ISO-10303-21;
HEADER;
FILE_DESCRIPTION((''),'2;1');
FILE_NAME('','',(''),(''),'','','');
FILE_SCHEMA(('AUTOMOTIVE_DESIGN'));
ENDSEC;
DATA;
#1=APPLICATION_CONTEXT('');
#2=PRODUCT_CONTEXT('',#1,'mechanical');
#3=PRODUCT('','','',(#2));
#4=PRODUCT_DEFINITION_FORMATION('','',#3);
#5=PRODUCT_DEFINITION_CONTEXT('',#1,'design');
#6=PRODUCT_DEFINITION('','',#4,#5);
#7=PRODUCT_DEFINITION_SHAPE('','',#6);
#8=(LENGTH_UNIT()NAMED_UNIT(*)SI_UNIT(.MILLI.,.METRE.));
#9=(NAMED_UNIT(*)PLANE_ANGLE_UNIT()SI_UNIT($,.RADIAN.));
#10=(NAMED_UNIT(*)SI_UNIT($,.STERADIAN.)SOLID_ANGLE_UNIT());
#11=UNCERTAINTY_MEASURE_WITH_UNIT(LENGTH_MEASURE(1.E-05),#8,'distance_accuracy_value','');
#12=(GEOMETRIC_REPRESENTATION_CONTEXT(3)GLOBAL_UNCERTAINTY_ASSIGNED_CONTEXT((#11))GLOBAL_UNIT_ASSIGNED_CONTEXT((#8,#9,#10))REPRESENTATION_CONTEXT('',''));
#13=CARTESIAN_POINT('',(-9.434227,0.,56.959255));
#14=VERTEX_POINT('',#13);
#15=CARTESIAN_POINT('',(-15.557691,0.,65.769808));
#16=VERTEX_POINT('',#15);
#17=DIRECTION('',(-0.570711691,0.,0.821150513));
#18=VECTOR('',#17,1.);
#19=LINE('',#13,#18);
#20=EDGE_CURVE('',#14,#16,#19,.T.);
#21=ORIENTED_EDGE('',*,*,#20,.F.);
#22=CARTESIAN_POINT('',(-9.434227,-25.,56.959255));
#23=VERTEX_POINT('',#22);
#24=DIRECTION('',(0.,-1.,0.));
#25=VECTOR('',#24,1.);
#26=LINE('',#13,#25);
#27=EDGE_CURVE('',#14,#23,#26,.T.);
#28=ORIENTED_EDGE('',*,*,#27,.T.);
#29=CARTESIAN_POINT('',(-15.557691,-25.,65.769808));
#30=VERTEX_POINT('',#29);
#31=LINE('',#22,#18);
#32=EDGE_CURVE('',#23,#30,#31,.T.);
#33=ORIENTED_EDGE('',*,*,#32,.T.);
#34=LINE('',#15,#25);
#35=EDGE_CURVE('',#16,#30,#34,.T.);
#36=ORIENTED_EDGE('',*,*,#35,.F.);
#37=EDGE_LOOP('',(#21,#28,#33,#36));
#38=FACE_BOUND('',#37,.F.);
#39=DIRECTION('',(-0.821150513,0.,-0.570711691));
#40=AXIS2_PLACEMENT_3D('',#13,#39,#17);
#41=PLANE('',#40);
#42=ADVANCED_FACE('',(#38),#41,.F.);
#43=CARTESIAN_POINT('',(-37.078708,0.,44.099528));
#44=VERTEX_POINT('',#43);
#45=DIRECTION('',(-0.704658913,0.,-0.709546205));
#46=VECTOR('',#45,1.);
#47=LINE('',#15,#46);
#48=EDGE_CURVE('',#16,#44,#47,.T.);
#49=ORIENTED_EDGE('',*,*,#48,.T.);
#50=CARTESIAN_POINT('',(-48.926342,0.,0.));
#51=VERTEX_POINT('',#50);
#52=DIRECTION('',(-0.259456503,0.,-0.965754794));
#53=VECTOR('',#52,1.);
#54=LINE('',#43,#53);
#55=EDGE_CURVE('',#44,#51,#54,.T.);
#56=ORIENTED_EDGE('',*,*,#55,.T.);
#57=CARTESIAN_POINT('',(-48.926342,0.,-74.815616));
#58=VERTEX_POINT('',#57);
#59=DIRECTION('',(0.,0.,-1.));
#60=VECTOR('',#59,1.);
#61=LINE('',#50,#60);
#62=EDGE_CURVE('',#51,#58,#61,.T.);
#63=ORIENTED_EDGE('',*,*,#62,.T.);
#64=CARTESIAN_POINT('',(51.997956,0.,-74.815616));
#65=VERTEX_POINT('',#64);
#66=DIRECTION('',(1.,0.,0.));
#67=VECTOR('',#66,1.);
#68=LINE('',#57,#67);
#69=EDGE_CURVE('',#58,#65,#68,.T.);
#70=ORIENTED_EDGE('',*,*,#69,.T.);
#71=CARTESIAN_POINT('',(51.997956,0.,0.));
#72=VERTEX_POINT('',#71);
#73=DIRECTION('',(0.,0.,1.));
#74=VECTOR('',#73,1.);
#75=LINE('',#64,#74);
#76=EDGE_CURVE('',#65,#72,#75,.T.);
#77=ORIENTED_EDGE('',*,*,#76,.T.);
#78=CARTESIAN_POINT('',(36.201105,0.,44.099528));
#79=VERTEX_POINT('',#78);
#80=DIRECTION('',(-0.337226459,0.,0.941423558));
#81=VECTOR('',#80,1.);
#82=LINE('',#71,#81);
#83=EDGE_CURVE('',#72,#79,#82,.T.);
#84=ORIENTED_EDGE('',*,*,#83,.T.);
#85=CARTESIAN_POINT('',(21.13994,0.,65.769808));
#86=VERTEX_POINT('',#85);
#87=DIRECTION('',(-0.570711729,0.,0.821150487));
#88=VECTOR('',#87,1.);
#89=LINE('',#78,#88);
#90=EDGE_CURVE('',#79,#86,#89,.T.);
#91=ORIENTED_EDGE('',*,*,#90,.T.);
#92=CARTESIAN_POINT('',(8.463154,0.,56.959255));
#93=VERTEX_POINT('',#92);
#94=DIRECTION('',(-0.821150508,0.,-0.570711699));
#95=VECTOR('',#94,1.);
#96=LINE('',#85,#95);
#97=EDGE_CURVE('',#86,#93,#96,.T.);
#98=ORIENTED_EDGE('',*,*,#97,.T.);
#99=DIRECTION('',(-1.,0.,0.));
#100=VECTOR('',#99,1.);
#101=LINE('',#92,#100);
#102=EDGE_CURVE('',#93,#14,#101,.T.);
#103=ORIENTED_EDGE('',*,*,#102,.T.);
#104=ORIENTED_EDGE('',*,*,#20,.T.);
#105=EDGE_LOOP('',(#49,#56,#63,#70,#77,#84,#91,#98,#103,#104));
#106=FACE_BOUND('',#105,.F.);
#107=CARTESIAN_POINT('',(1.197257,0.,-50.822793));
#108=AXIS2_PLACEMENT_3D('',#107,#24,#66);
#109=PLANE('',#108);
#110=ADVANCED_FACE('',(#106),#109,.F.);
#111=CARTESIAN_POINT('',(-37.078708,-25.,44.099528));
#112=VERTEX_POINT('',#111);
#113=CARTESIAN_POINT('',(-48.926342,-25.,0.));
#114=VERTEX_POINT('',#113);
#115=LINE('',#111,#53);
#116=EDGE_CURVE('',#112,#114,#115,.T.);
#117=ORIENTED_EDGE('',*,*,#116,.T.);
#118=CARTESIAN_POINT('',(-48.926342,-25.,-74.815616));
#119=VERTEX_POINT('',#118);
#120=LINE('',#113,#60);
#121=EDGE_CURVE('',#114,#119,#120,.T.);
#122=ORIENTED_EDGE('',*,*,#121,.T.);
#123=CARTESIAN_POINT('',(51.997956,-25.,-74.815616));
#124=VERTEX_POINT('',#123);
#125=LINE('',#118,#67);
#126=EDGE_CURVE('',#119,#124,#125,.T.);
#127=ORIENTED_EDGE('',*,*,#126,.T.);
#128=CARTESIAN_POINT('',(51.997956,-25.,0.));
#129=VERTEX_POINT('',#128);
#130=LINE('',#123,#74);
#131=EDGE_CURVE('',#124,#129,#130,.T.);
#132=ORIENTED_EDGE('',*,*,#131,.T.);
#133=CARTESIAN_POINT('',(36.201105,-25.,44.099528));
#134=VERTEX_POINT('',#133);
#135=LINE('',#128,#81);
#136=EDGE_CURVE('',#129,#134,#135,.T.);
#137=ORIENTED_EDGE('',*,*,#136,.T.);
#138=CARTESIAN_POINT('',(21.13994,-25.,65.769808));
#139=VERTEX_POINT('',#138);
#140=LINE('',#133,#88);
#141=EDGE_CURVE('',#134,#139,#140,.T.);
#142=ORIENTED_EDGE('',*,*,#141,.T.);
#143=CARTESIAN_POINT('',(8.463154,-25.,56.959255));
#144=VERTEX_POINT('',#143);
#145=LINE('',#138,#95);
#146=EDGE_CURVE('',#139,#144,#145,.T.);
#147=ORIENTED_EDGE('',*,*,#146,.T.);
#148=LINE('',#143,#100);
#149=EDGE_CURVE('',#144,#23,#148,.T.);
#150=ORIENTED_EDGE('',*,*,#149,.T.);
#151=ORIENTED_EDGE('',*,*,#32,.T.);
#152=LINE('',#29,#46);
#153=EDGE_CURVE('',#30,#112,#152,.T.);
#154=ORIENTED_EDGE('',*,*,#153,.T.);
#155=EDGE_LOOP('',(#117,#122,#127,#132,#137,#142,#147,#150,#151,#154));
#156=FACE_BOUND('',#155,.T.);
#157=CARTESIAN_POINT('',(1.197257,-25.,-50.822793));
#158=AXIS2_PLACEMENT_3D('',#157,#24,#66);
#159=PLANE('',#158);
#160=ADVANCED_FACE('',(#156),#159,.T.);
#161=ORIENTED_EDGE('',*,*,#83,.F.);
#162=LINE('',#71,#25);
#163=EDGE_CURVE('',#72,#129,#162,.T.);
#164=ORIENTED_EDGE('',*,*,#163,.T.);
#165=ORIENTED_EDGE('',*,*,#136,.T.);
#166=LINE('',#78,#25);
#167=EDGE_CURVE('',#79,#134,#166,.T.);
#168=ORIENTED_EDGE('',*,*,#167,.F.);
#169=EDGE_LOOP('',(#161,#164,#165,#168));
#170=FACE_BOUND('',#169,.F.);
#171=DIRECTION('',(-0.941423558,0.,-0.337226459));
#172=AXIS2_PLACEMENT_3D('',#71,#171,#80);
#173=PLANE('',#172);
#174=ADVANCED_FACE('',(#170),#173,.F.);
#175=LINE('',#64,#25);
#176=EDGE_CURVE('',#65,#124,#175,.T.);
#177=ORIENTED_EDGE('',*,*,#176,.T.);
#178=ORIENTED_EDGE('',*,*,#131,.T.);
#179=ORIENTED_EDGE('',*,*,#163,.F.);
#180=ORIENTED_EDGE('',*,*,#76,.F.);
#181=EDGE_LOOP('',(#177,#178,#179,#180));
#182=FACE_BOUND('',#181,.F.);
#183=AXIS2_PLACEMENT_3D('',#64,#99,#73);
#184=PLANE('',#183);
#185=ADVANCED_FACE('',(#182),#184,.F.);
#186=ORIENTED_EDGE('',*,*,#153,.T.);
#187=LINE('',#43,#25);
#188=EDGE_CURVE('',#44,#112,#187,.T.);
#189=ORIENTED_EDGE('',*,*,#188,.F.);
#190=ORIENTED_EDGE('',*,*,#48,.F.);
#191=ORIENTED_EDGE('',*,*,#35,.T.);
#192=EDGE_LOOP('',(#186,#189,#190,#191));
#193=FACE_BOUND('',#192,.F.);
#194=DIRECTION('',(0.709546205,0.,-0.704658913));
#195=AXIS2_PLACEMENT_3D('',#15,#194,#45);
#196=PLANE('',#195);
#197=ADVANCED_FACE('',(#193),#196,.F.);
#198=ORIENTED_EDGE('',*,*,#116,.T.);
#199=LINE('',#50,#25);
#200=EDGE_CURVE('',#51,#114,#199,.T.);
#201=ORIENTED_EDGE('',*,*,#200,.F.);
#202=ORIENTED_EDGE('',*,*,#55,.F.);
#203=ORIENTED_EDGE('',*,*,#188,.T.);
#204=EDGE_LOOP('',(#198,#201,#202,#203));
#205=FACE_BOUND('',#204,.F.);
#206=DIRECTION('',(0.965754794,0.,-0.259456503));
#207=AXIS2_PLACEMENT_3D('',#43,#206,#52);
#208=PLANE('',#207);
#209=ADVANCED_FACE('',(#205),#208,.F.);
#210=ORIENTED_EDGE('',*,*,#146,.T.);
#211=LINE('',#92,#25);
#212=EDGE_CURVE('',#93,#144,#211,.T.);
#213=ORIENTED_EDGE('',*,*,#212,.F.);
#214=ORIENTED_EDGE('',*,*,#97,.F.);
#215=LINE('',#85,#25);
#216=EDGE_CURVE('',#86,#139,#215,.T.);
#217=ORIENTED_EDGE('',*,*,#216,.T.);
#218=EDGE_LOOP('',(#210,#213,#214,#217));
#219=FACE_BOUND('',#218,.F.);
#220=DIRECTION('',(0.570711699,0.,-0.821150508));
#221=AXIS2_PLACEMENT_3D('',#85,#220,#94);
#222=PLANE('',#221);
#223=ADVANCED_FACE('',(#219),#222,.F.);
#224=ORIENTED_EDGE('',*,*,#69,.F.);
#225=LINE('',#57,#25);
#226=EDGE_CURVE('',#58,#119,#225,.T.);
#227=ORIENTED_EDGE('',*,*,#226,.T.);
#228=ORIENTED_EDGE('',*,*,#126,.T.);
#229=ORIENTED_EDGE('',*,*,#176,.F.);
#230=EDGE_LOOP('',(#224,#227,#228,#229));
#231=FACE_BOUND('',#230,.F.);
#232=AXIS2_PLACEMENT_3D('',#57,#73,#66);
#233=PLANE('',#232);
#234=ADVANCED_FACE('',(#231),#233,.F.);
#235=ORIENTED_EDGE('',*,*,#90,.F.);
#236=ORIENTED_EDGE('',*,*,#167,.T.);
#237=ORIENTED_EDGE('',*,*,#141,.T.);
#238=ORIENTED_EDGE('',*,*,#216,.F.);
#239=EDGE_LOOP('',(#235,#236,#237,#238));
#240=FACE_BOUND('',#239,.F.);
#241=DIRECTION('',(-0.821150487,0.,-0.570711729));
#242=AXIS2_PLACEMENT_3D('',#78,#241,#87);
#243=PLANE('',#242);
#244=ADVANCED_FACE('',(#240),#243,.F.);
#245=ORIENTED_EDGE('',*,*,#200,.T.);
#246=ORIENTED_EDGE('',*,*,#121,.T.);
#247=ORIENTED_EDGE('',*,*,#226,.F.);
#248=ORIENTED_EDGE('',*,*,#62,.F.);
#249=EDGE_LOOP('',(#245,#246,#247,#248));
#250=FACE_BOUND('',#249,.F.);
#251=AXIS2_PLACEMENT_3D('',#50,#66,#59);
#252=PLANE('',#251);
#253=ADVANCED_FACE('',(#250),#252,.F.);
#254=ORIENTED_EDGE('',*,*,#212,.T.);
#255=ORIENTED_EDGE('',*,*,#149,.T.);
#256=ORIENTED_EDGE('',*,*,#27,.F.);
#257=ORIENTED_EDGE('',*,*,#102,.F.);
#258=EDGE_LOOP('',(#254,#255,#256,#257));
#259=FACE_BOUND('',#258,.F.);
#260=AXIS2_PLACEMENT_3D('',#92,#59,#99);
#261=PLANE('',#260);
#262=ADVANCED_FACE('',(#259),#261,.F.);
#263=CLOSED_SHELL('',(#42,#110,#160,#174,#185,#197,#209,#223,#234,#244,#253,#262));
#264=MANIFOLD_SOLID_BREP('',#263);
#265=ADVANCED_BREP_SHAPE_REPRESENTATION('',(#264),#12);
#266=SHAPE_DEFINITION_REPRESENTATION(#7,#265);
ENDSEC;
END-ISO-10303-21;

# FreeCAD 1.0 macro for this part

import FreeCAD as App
import Part
import Sketcher
from FreeCAD import Vector
Q = App.Units.Quantity


def add_polygon(sketch, points):
    """Adds a closed chain of lines whose ends are joined by coincident constraints."""
    first, n = sketch.GeometryCount, len(points)
    for a, b in zip(points, points[1:] + points[:1]):
        sketch.addGeometry(Part.LineSegment(App.Vector(*a, 0), App.Vector(*b, 0)), False)
    for i in range(n):
        sketch.addConstraint(Sketcher.Constraint("Coincident", first + i, 2, first + (i + 1) % n, 1))

doc = App.newDocument("Part")
params = doc.addObject("Spreadsheet::Sheet", "Params")
for row, (alias, value) in enumerate([
    ("pad1_length", "25 mm"),
], start=1):
    params.set(f"A{row}", alias)
    params.set(f"B{row}", "=" + value)
    params.setAlias(f"B{row}", alias)

body = doc.addObject("PartDesign::Body", "Body")

sketch1 = doc.addObject("Sketcher::SketchObject", "Sketch")
body.addObject(sketch1)
sketch1.AttachmentSupport = (doc.XZ_Plane, [""])
sketch1.MapMode = "FlatFace"
add_polygon(sketch1, [(-49, -75), (52, -75), (52, 0), (36, 44), (21, 66), (8, 57), (-9, 57), (-16, 66), (-37, 44), (-49, 0)])
sketch1.addConstraint([
    Sketcher.Constraint("Horizontal", 0),
    Sketcher.Constraint("Vertical", 1),
    Sketcher.Constraint("Horizontal", 5),
    Sketcher.Constraint("Vertical", 9),
    Sketcher.Constraint("PointOnObject", 1, 2, -1),
    Sketcher.Constraint("PointOnObject", 8, 2, -1),
    Sketcher.Constraint("Perpendicular", 3, 4),
    Sketcher.Constraint("Perpendicular", 4, 6),
    Sketcher.Constraint("Horizontal", 3, 2, 6, 2),
    Sketcher.Constraint("Horizontal", 2, 2, 7, 2),
    Sketcher.Constraint("DistanceX", 5, 2, 5, 1, Q("17.897381 mm")),
    Sketcher.Constraint("Distance", 2, Q("46.843451 mm")),
    Sketcher.Constraint("Distance", 7, Q("30.541041 mm")),
    Sketcher.Constraint("DistanceX", 0, 1, 0, 2, Q("100.924298 mm")),
    Sketcher.Constraint("DistanceY", 1, 1, 1, 2, Q("74.815616 mm")),
    Sketcher.Constraint("DistanceX", -1, 1, 3, 2, Q("21.13994 mm")),
    Sketcher.Constraint("DistanceX", 6, 2, -1, 1, Q("15.557691 mm")),
    Sketcher.Constraint("DistanceX", 8, 2, -1, 1, Q("48.926342 mm")),
    Sketcher.Constraint("DistanceX", 2, 2, 1, 2, Q("15.796851 mm")),
    Sketcher.Constraint("DistanceY", 2, 2, 3, 2, Q("21.67028 mm")),
])
pad1 = doc.addObject("PartDesign::Pad", "Pad")
body.addObject(pad1)
pad1.Profile = sketch1
pad1.setExpression("Length", "Params.pad1_length")

doc.recompute()
